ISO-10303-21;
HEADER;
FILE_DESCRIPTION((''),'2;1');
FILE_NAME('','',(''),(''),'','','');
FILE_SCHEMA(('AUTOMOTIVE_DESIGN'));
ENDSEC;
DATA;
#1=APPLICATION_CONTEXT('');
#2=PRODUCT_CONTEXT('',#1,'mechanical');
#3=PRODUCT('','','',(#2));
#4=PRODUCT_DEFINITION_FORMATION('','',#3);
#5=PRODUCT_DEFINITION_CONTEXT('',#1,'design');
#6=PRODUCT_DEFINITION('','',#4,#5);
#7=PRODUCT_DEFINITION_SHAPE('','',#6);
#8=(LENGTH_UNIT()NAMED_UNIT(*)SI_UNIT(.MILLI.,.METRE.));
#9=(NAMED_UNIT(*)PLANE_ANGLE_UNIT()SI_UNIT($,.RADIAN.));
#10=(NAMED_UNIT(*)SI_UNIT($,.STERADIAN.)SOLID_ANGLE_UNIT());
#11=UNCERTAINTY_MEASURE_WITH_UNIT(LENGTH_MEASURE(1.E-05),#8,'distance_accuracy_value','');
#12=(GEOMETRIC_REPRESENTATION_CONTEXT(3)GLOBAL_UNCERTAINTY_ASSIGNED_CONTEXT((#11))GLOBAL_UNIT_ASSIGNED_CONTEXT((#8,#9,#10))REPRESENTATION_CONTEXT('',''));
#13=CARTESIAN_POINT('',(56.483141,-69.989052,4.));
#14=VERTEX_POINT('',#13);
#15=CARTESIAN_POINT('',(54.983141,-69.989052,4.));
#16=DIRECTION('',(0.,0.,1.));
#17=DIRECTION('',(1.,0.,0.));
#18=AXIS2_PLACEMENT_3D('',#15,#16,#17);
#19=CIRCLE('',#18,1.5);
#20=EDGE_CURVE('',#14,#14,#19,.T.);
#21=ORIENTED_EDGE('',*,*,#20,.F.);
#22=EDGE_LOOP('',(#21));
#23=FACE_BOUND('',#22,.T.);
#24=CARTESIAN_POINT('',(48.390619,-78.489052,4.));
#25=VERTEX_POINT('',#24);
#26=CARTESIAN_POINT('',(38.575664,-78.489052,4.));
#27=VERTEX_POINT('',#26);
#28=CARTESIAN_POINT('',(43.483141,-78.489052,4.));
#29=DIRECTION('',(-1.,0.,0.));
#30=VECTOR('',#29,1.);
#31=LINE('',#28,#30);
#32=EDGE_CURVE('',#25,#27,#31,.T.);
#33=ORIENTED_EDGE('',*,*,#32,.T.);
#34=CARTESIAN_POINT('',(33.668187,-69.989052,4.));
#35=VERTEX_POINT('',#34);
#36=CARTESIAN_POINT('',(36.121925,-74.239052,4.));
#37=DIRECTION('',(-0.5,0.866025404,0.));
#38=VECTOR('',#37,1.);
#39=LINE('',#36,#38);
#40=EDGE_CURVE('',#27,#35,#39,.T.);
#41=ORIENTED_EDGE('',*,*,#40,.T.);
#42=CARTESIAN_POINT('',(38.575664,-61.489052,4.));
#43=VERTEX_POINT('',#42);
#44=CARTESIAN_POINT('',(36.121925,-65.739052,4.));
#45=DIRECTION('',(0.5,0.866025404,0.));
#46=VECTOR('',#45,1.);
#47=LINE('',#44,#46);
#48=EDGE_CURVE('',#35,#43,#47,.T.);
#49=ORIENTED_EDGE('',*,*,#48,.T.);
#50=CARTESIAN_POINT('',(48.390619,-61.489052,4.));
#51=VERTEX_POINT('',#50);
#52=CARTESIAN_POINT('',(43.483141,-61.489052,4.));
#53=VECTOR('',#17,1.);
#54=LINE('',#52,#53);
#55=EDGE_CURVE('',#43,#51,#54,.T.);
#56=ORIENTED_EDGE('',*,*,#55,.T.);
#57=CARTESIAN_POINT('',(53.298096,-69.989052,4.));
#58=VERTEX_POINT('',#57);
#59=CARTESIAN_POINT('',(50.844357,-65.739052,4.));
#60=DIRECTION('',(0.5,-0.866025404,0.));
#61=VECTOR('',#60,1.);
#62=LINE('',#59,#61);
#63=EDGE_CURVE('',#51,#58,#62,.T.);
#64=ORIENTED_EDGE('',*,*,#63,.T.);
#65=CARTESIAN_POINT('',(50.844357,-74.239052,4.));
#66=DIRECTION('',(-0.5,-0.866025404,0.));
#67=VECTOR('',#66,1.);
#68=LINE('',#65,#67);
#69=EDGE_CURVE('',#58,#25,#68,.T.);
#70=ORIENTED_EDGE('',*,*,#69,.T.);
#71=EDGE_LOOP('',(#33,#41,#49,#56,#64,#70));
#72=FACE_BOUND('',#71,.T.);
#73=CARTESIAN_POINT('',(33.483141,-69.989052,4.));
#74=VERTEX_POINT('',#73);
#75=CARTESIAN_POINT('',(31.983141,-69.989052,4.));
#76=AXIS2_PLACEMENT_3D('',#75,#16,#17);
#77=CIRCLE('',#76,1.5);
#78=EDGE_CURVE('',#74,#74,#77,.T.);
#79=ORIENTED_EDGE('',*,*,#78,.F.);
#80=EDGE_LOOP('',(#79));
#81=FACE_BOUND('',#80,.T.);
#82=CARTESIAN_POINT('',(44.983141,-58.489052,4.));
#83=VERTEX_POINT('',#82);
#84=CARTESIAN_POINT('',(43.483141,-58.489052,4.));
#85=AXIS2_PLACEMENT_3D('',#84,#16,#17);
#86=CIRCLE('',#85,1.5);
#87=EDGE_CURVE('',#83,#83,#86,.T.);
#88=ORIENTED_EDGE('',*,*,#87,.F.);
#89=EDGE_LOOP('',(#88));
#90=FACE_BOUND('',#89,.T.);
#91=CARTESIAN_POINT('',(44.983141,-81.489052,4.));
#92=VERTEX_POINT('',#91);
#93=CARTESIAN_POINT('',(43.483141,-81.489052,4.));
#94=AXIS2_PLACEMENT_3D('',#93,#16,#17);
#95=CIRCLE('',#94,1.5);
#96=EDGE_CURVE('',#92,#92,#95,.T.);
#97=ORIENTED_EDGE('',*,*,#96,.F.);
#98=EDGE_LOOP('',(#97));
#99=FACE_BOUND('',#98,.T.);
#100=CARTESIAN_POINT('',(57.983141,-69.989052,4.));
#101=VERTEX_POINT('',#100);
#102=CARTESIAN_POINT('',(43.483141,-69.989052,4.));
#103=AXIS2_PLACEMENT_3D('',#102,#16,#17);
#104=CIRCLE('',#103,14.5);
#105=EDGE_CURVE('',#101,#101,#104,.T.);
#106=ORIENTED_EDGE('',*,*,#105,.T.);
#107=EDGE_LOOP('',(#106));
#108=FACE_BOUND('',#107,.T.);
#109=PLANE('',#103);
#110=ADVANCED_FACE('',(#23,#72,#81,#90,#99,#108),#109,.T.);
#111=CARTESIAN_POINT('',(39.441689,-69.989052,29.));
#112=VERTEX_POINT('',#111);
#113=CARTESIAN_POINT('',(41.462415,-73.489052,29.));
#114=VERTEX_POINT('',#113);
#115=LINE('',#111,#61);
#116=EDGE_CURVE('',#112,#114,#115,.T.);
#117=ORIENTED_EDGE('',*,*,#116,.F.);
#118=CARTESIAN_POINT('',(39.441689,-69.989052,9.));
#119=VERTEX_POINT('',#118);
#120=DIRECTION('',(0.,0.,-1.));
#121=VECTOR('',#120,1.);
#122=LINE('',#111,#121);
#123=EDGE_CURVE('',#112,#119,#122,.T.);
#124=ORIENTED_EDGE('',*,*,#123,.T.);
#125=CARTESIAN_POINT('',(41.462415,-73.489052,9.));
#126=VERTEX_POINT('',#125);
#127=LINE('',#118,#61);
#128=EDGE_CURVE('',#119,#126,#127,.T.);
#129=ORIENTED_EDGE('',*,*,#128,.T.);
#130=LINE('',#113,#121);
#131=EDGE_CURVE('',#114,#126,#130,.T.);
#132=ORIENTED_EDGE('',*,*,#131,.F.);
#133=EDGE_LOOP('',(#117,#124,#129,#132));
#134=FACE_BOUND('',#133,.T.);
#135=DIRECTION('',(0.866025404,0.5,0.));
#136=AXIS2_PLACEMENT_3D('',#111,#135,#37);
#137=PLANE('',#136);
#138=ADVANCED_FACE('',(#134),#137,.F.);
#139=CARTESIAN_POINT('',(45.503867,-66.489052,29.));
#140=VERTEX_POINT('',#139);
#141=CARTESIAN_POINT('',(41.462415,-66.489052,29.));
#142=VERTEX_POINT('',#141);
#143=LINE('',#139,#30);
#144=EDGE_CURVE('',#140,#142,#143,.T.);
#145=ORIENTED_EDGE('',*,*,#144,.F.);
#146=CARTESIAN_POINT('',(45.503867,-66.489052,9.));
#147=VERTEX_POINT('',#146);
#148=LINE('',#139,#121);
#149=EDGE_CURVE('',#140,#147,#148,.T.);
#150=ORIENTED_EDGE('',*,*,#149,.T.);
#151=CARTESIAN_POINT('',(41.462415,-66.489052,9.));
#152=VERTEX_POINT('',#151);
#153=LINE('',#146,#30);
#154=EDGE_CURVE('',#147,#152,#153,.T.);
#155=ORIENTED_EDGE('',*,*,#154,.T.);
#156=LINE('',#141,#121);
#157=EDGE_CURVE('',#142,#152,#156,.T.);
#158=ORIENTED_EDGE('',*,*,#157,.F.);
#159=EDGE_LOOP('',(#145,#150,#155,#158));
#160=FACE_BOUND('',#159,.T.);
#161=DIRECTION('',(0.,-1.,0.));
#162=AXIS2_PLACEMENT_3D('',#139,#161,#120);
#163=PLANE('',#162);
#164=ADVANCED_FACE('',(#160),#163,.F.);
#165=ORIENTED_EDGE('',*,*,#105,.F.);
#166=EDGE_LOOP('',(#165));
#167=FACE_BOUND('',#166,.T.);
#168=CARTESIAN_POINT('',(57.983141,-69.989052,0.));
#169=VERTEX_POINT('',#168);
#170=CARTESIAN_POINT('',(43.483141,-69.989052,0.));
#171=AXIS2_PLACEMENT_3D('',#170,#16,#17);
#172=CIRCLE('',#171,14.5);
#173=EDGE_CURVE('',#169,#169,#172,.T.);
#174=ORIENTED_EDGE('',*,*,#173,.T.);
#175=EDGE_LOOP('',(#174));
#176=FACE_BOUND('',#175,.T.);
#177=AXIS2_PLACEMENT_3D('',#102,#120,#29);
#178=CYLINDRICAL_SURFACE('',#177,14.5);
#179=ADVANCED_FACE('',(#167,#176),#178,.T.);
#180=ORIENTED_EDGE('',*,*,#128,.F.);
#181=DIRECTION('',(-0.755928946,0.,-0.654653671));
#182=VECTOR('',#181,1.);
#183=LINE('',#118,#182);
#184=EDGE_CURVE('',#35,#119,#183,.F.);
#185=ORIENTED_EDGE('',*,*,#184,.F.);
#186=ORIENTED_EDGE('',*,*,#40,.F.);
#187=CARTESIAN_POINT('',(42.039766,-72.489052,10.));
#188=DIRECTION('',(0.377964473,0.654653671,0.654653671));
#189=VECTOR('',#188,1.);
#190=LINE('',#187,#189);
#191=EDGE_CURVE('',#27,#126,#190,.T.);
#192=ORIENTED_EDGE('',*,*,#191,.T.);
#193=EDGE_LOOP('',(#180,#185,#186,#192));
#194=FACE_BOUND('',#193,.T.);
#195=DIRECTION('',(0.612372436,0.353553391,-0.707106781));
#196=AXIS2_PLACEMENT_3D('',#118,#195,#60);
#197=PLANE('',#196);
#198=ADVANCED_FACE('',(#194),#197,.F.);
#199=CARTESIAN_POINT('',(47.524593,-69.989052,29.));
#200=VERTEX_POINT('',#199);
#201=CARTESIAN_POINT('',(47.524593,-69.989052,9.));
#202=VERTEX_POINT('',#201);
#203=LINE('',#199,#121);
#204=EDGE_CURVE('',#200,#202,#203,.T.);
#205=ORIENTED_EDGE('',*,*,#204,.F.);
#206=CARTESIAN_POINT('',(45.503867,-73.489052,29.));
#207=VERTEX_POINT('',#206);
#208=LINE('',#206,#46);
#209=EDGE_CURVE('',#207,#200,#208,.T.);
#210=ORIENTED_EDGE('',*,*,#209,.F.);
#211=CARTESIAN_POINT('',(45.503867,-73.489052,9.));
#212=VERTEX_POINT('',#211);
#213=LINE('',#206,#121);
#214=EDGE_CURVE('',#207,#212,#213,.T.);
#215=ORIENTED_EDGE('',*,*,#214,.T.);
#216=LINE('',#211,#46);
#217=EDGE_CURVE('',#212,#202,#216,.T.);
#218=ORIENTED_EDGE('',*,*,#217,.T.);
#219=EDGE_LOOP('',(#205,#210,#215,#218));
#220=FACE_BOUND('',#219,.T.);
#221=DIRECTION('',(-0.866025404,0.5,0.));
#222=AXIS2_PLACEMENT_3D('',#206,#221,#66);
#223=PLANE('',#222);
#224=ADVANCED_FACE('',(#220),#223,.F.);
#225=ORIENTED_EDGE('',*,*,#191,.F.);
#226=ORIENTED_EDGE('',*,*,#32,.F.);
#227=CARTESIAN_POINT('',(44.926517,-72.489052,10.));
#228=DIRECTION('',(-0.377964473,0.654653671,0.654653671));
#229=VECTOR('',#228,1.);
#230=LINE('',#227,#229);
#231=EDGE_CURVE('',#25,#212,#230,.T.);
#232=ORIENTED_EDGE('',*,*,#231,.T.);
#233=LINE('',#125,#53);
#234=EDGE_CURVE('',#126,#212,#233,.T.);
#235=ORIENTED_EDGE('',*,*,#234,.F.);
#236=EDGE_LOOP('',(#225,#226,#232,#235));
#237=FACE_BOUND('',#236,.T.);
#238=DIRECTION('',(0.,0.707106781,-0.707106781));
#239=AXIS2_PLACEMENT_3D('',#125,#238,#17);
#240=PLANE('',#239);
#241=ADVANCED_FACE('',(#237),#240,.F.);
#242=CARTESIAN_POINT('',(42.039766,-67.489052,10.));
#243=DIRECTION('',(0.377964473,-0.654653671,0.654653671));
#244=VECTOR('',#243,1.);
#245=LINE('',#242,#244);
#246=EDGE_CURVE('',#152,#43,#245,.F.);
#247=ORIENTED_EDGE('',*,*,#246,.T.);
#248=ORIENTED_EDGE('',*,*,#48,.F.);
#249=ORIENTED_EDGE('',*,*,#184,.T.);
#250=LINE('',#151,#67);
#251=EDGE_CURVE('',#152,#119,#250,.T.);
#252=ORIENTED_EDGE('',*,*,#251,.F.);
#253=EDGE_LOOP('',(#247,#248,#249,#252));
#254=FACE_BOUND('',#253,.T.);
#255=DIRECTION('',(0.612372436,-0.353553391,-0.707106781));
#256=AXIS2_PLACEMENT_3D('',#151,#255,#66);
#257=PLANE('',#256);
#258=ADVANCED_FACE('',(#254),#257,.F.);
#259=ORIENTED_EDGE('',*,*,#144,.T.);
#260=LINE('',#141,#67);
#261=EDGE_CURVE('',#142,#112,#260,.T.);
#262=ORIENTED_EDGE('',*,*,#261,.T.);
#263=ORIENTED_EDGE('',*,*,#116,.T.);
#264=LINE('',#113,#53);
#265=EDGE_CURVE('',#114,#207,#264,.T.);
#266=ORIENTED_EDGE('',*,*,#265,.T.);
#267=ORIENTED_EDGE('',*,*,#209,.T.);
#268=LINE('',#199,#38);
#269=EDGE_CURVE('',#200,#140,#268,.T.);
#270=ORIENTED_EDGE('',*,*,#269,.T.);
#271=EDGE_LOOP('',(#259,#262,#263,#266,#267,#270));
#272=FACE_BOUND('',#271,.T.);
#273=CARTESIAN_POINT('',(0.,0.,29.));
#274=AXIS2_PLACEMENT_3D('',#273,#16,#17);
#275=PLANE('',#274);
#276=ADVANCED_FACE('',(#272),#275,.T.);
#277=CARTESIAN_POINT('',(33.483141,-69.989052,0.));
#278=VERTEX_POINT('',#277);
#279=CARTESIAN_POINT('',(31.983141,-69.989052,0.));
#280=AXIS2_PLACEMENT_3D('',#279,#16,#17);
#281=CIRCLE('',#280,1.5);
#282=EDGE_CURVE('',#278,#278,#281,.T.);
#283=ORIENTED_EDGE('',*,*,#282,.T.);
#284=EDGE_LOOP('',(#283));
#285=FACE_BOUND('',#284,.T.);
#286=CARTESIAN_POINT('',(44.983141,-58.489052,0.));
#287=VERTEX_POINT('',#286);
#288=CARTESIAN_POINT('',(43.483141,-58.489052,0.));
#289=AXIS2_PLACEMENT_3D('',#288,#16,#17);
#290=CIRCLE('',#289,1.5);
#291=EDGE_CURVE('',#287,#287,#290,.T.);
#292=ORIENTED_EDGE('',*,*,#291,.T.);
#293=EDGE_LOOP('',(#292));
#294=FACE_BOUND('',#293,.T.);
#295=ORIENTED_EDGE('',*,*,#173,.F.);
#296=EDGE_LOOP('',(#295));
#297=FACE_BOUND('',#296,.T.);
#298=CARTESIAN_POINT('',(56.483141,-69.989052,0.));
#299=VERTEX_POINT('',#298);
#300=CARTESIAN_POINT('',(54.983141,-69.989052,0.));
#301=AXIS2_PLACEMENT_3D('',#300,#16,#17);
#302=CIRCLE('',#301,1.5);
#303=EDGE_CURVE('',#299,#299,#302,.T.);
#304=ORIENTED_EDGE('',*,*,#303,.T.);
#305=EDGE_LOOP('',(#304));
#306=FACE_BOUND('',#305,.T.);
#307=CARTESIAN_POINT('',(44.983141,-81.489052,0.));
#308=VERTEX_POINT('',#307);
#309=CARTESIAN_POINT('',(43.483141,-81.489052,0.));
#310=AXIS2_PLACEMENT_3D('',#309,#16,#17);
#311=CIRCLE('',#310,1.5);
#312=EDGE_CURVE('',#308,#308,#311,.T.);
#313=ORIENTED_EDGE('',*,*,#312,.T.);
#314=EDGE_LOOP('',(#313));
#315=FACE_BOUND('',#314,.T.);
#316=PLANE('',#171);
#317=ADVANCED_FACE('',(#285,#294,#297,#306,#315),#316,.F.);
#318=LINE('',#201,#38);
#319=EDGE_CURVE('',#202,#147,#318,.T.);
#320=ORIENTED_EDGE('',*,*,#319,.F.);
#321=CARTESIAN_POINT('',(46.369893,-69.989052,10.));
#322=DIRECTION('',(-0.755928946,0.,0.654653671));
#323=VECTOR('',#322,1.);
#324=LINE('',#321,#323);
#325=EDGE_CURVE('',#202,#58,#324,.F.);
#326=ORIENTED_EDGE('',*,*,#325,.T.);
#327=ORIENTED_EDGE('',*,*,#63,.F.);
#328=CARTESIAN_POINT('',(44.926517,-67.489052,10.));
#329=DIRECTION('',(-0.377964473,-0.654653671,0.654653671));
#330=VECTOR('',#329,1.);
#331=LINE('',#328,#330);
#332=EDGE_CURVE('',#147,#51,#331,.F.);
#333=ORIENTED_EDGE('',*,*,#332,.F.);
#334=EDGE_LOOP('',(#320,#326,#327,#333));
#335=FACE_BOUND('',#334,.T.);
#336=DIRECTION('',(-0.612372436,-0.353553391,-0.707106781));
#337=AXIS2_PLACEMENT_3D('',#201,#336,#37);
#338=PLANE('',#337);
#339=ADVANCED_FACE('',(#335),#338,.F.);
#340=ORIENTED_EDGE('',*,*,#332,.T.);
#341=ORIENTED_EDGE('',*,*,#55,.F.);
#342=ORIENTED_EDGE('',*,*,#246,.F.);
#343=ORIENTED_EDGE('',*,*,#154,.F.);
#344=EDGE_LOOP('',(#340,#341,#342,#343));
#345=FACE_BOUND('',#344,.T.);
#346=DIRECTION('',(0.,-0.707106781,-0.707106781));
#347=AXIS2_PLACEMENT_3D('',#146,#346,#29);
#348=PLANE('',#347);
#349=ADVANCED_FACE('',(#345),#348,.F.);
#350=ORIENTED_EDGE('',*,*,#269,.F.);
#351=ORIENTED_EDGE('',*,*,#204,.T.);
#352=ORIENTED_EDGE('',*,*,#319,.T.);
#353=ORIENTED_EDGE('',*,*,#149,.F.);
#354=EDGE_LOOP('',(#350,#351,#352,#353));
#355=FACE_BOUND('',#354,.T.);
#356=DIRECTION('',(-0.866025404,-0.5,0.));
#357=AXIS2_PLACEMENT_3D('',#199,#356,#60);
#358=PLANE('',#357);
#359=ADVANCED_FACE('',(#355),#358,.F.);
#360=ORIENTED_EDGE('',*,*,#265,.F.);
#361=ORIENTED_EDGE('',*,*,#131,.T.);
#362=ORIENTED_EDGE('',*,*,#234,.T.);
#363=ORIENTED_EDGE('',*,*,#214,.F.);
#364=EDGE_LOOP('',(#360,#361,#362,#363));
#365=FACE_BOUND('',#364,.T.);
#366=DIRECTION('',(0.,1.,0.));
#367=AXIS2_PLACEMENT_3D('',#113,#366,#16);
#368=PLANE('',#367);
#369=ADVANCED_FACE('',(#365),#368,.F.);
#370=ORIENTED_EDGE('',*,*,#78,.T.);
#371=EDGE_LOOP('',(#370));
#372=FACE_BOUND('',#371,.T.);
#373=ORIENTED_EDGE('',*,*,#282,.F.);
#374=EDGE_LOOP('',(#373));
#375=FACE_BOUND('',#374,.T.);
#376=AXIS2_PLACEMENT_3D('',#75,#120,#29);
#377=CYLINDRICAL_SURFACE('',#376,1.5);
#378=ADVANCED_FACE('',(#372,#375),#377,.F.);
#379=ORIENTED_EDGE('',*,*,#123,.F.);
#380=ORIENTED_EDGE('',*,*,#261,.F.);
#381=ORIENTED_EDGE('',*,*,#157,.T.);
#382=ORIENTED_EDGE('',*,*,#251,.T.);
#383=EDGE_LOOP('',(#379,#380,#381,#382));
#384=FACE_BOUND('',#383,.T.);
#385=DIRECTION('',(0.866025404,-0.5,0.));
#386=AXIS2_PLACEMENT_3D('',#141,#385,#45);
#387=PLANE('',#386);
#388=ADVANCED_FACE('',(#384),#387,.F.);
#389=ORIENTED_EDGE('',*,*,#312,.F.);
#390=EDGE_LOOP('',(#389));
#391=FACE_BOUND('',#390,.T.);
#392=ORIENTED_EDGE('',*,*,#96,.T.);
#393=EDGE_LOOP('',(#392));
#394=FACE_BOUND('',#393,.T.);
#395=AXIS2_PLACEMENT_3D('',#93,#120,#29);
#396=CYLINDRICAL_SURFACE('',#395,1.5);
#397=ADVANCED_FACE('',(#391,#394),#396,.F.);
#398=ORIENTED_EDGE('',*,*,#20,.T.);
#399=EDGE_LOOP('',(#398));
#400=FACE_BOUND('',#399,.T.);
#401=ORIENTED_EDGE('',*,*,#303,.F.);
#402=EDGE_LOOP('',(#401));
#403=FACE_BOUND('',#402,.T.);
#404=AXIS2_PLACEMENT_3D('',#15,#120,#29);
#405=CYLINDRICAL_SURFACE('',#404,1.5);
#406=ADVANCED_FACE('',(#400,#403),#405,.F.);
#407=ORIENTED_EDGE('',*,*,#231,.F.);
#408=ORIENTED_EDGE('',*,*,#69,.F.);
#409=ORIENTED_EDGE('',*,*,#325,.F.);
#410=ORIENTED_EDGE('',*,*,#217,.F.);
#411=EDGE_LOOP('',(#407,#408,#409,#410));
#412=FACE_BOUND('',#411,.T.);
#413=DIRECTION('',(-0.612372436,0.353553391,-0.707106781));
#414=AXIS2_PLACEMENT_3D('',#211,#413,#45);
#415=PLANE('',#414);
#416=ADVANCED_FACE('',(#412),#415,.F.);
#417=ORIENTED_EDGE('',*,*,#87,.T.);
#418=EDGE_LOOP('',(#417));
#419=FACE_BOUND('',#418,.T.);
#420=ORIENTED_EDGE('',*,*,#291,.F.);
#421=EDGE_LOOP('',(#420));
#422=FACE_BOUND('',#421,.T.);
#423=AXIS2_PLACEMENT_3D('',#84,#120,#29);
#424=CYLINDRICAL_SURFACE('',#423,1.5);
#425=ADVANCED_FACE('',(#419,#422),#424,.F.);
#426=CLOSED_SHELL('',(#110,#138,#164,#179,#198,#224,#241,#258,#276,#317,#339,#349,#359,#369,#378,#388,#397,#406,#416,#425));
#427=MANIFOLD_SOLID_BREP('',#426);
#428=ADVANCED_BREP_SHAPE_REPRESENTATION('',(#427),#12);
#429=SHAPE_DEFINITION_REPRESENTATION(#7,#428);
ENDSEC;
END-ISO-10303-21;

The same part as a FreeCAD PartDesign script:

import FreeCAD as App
import Part
import Sketcher
from FreeCAD import Vector
Q = App.Units.Quantity


def edges_at(feature, points):
    """Names of the edges that pass closest to the given points."""
    edges = feature.Shape.Edges
    near = lambda p: min(range(len(edges)), key=lambda i: edges[i].distToShape(Part.Vertex(*p))[0])
    return sorted({f"Edge{near(p) + 1}" for p in points})

doc = App.newDocument("Part")
body = doc.addObject("PartDesign::Body", "Body")

sketch1 = body.newObject("Sketcher::SketchObject", "Sketch")
sketch1.AttachmentSupport = (doc.getObject("XY_Plane"), [""])
sketch1.MapMode = "FlatFace"
sketch1.addGeometry([
    Part.Circle(Vector(43.5, -70, 0), Vector(0, 0, 1), 14.5),
    Part.Circle(Vector(32, -70, 0), Vector(0, 0, 1), 1.5),
    Part.Circle(Vector(43.5, -81.5, 0), Vector(0, 0, 1), 1.5),
    Part.Circle(Vector(55, -70, 0), Vector(0, 0, 1), 1.5),
    Part.Circle(Vector(43.5, -58.5, 0), Vector(0, 0, 1), 1.5),
], False)
sketch1.addConstraint([
    Sketcher.Constraint("Equal", 1, 2),
    Sketcher.Constraint("Equal", 2, 3),
    Sketcher.Constraint("Equal", 3, 4),
    Sketcher.Constraint("Horizontal", 0, 3, 1, 3),
    Sketcher.Constraint("Horizontal", 1, 3, 3, 3),
    Sketcher.Constraint("Vertical", 0, 3, 2, 3),
    Sketcher.Constraint("Vertical", 2, 3, 4, 3),
    Sketcher.Constraint("Diameter", 0, 29.0),
    Sketcher.Constraint("Diameter", 1, 3.0),
    Sketcher.Constraint("DistanceX", 1, 3, 3, 3, 23.0),
    Sketcher.Constraint("DistanceY", 2, 3, 4, 3, 23.0),
    Sketcher.Constraint("DistanceX", 1, 3, 0, 3, 11.5),
    Sketcher.Constraint("DistanceY", 2, 3, 0, 3, 11.5),
    Sketcher.Constraint("DistanceX", -1, 1, 0, 3, 43.483141),
    Sketcher.Constraint("DistanceY", 0, 3, -1, 1, 69.989052),
])
pad1 = body.newObject("PartDesign::Pad", "Pad")
pad1.Profile = sketch1
pad1.Length = 4

sketch2 = body.newObject("Sketcher::SketchObject", "Sketch001")
sketch2.AttachmentSupport = (doc.getObject("XY_Plane"), [""])
sketch2.MapMode = "FlatFace"
sketch2.AttachmentOffset = App.Placement(Vector(0, 0, 4), App.Rotation())
sketch2.addGeometry([
    Part.LineSegment(Vector(47.5, -70, 0), Vector(45.5, -66.5, 0)),
    Part.LineSegment(Vector(45.5, -66.5, 0), Vector(41.5, -66.5, 0)),
    Part.LineSegment(Vector(41.5, -66.5, 0), Vector(39.4, -70, 0)),
    Part.LineSegment(Vector(39.4, -70, 0), Vector(41.5, -73.5, 0)),
    Part.LineSegment(Vector(41.5, -73.5, 0), Vector(45.5, -73.5, 0)),
    Part.LineSegment(Vector(45.5, -73.5, 0), Vector(47.5, -70, 0)),
], False)
sketch2.addConstraint([
    Sketcher.Constraint("Coincident", 0, 2, 1, 1),
    Sketcher.Constraint("Coincident", 1, 2, 2, 1),
    Sketcher.Constraint("Coincident", 2, 2, 3, 1),
    Sketcher.Constraint("Coincident", 3, 2, 4, 1),
    Sketcher.Constraint("Coincident", 4, 2, 5, 1),
    Sketcher.Constraint("Coincident", 5, 2, 0, 1),
    Sketcher.Constraint("Horizontal", 1),
    Sketcher.Constraint("Horizontal", 4),
    Sketcher.Constraint("Parallel", 0, 3),
    Sketcher.Constraint("Parallel", 2, 5),
    Sketcher.Constraint("Horizontal", 2, 2, 5, 2),
    Sketcher.Constraint("Vertical", 1, 2, 3, 2),
    Sketcher.Constraint("Vertical", 0, 2, 4, 2),
    Sketcher.Constraint("Angle", 0, Q("120 deg")),
    Sketcher.Constraint("DistanceY", 3, 2, 1, 2, 7.0),
    Sketcher.Constraint("DistanceX", 1, 2, 1, 1, 4.041452),
    Sketcher.Constraint("DistanceX", -1, 1, 2, 2, 39.441689),
    Sketcher.Constraint("DistanceY", 0, 2, -1, 1, 66.489052),
])
pad2 = body.newObject("PartDesign::Pad", "Pad001")
pad2.Profile = sketch2
pad2.Length = 25
doc.recompute()

chamfer = body.newObject("PartDesign::Chamfer", "Chamfer")
chamfer.Base = (pad2, edges_at(pad2, [
    (46.514, -71.739, 4),
    (46.514, -68.239, 4),
    (43.483, -66.489, 4),
    (40.452, -68.239, 4),
    (40.452, -71.739, 4),
    (43.483, -73.489, 4),
]))
chamfer.Size = 5

doc.recompute()
